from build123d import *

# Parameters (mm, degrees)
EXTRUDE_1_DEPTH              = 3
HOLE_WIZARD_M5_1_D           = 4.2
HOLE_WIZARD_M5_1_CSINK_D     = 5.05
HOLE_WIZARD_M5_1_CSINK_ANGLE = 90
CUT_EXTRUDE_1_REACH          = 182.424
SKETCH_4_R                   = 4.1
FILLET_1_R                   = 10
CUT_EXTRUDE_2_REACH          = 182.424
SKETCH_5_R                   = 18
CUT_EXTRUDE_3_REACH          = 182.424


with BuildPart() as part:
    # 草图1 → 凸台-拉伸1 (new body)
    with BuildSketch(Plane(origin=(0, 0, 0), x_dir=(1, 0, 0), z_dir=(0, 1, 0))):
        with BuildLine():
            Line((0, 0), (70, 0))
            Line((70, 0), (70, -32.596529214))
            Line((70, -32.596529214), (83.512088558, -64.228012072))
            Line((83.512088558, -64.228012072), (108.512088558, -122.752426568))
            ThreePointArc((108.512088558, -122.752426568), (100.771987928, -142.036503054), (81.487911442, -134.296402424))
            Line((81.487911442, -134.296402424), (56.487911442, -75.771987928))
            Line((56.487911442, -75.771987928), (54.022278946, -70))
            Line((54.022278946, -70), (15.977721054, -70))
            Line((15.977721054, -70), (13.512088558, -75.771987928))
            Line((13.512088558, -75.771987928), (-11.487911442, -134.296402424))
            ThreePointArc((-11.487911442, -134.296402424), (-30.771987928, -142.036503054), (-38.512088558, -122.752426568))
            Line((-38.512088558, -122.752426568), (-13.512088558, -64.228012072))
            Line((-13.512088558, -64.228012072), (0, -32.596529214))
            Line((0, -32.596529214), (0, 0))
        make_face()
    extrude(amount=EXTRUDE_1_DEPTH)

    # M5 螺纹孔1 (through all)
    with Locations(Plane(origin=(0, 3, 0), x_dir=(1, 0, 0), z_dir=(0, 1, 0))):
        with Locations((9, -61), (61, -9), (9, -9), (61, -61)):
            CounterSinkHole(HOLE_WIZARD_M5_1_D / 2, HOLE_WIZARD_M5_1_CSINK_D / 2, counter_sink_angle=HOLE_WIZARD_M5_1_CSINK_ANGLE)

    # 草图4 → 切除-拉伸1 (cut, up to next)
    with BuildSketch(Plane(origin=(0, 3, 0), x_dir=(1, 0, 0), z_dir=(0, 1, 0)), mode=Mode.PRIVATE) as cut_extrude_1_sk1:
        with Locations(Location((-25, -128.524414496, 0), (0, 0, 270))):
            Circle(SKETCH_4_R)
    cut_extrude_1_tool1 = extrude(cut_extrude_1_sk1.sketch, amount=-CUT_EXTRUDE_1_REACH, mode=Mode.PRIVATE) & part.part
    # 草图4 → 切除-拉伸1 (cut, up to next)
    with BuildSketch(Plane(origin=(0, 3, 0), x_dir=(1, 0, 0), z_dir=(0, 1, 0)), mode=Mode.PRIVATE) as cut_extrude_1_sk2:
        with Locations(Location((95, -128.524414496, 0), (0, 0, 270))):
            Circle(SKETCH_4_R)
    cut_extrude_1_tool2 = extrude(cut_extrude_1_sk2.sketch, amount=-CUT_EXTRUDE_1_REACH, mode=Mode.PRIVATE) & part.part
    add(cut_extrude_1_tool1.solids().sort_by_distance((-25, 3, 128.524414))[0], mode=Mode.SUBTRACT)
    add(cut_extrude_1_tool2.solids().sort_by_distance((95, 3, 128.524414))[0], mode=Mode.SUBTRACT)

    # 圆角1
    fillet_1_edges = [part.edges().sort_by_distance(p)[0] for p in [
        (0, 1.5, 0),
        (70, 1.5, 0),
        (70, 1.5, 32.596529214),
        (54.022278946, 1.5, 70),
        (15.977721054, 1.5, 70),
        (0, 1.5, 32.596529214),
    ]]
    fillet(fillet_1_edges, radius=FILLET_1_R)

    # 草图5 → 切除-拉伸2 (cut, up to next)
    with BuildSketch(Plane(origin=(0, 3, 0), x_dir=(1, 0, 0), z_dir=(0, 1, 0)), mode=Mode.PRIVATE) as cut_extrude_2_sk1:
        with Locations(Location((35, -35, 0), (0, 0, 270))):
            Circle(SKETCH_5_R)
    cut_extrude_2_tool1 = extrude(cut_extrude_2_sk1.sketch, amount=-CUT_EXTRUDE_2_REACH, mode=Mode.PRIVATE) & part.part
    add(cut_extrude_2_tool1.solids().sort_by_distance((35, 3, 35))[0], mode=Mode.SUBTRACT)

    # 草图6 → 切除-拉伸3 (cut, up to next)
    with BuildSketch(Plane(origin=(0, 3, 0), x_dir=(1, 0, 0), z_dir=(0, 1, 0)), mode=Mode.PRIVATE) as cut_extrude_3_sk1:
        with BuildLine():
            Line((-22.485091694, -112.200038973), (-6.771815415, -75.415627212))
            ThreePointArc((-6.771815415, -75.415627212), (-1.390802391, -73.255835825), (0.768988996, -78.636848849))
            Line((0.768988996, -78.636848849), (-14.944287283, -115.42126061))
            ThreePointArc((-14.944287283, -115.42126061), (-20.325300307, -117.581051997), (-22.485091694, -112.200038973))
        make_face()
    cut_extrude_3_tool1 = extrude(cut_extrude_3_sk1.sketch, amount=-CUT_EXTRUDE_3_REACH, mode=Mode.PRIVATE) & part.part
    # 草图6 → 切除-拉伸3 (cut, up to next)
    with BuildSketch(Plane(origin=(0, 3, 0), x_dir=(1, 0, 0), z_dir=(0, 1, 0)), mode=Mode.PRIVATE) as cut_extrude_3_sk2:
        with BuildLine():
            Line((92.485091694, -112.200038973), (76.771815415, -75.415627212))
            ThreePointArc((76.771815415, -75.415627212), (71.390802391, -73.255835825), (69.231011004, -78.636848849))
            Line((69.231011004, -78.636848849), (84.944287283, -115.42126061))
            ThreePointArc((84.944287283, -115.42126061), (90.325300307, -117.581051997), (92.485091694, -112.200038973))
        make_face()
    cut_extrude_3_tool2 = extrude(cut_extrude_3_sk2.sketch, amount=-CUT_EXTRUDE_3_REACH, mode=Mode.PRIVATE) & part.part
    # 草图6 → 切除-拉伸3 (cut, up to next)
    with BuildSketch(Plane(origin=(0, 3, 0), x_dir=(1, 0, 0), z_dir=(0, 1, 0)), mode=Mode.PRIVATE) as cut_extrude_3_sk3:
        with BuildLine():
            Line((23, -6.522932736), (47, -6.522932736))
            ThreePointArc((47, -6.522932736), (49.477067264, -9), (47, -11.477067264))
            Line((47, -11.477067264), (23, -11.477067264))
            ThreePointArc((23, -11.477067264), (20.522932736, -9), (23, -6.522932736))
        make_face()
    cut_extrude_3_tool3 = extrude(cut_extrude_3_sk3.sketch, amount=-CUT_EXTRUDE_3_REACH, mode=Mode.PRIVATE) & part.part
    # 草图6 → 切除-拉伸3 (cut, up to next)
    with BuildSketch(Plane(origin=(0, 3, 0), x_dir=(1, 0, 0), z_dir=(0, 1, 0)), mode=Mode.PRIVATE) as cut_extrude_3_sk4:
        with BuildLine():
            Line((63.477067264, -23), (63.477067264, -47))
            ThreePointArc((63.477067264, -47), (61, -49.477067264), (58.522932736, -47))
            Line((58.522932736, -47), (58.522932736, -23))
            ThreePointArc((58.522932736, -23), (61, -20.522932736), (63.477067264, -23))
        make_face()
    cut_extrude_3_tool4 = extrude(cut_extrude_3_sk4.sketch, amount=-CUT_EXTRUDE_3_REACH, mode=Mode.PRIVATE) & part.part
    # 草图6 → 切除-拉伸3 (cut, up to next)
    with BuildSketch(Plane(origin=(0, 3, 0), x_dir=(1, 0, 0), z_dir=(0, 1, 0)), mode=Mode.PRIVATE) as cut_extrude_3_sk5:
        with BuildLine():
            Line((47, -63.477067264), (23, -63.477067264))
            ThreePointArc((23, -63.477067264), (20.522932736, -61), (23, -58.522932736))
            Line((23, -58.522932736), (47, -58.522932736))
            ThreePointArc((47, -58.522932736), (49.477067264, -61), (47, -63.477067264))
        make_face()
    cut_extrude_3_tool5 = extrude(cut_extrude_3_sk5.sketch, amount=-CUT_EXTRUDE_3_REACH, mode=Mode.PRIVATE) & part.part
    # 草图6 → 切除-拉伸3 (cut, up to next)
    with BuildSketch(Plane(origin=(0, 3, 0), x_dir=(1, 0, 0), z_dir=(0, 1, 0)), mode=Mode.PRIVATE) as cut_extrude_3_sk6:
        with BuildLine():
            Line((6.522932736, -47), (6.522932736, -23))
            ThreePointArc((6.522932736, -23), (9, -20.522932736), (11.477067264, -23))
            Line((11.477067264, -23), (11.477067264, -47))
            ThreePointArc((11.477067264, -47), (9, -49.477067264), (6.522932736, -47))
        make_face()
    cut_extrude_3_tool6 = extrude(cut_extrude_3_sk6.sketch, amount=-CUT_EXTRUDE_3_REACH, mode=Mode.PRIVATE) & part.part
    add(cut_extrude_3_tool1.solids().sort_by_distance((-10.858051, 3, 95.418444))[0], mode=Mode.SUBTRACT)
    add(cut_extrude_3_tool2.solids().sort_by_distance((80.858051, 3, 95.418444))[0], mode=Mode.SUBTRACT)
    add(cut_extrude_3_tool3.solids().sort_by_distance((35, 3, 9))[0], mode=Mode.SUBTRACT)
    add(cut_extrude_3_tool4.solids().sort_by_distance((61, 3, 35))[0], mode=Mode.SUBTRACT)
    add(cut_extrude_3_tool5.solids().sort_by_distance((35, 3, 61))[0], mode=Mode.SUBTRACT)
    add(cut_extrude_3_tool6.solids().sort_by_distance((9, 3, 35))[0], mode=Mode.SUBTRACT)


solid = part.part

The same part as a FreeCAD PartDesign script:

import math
import FreeCAD as App
import Part
import Sketcher

V = App.Vector
Q = App.Units.Quantity


def edges_at(feature, points):
    """Names of the edges that pass closest to the given points."""
    edges = feature.Shape.Edges
    near = lambda p: min(range(len(edges)), key=lambda i: edges[i].distToShape(Part.Vertex(*p))[0])
    return sorted({f"Edge{near(p) + 1}" for p in points})

doc = App.newDocument("Part")
body = doc.addObject("PartDesign::Body", "Body")

sketch1 = body.newObject("Sketcher::SketchObject", "Sketch")
sketch1.AttachmentSupport = (doc.getObject("XZ_Plane"), [""])
sketch1.MapMode = "FlatFace"
sketch1.addGeometry([
    Part.LineSegment(V(70, 0, 0), V(0, 0, 0)),
    Part.LineSegment(V(0, 0, 0), V(0, 33, 0)),
    Part.LineSegment(V(0, 33, 0), V(-14, 64, 0)),
    Part.LineSegment(V(-14, 64, 0), V(-39, 123, 0)),
    Part.ArcOfCircle(Part.Circle(V(-25, 129, 0), V(0, 0, 1), 15), math.radians(23), math.radians(203)),
    Part.LineSegment(V(-11, 134, 0), V(14, 76, 0)),
    Part.LineSegment(V(14, 76, 0), V(16, 70, 0)),
    Part.LineSegment(V(16, 70, 0), V(54, 70, 0)),
    Part.LineSegment(V(54, 70, 0), V(56, 76, 0)),
    Part.LineSegment(V(56, 76, 0), V(81, 134, 0)),
    Part.ArcOfCircle(Part.Circle(V(95, 129, 0), V(0, 0, 1), 15), math.radians(-23), math.radians(157)),
    Part.LineSegment(V(109, 123, 0), V(84, 64, 0)),
    Part.LineSegment(V(84, 64, 0), V(70, 33, 0)),
    Part.LineSegment(V(70, 33, 0), V(70, 0, 0)),
], False)
sketch1.addConstraint([
    Sketcher.Constraint("Coincident", 0, 2, 1, 1),
    Sketcher.Constraint("Coincident", 1, 2, 2, 1),
    Sketcher.Constraint("Coincident", 2, 2, 3, 1),
    Sketcher.Constraint("Tangent", 3, 2, 4, 2),
    Sketcher.Constraint("Tangent", 4, 1, 5, 1),
    Sketcher.Constraint("Coincident", 5, 2, 6, 1),
    Sketcher.Constraint("Coincident", 6, 2, 7, 1),
    Sketcher.Constraint("Coincident", 7, 2, 8, 1),
    Sketcher.Constraint("Coincident", 8, 2, 9, 1),
    Sketcher.Constraint("Tangent", 9, 2, 10, 2),
    Sketcher.Constraint("Tangent", 10, 1, 11, 1),
    Sketcher.Constraint("Coincident", 11, 2, 12, 1),
    Sketcher.Constraint("Coincident", 12, 2, 13, 1),
    Sketcher.Constraint("Coincident", 13, 2, 0, 1),
    Sketcher.Constraint("Horizontal", 0),
    Sketcher.Constraint("Vertical", 1),
    Sketcher.Constraint("Horizontal", 7),
    Sketcher.Constraint("Vertical", 13),
    Sketcher.Constraint("Coincident", 0, 2, -1, 1),
    Sketcher.Constraint("Equal", 4, 10),
    Sketcher.Constraint("Parallel", 2, 3),
    Sketcher.Constraint("Parallel", 3, 5),
    Sketcher.Constraint("Parallel", 5, 6),
    Sketcher.Constraint("Parallel", 8, 9),
    Sketcher.Constraint("Parallel", 9, 11),
    Sketcher.Constraint("Parallel", 11, 12),
    Sketcher.Constraint("Horizontal", 4, 3, 10, 3),
    Sketcher.Constraint("Horizontal", 5, 2, 8, 2),
    Sketcher.Constraint("Horizontal", 4, 1, 9, 2),
    Sketcher.Constraint("Horizontal", 2, 2, 11, 2),
    Sketcher.Constraint("Horizontal", 1, 2, 12, 2),
    Sketcher.Constraint("Equal", 3, 5),
    Sketcher.Constraint("DistanceX", 0, 2, 0, 1, Q("70 mm")),
    Sketcher.Constraint("DistanceX", 4, 3, -1, 1, Q("25 mm")),
    Sketcher.Constraint("DistanceY", -1, 1, 6, 2, Q("70 mm")),
    Sketcher.Constraint("DistanceX", 3, 2, 2, 2, Q("25 mm")),
    Sketcher.Constraint("Radius", 4, Q("14.693277 mm")),
    Sketcher.Constraint("DistanceY", 1, 1, 1, 2, Q("32.596529 mm")),
    Sketcher.Constraint("Distance", 3, Q("63.640452 mm")),
])
pad1 = body.newObject("PartDesign::Pad", "Pad")
pad1.Profile = sketch1
pad1.Length = 3
pad1.Reversed = True

sketch2 = body.newObject("Sketcher::SketchObject", "Sketch001")
sketch2.AttachmentSupport = (doc.getObject("XZ_Plane"), [""])
sketch2.MapMode = "FlatFace"
sketch2.AttachmentOffset = App.Placement(V(0, 0, -3), App.Rotation())
sketch2.addGeometry([
    Part.Circle(V(9, 61, 0), V(0, 0, 1), 2.1),
    Part.Circle(V(61, 9, 0), V(0, 0, 1), 2.1),
    Part.Circle(V(9, 9, 0), V(0, 0, 1), 2.1),
    Part.Circle(V(61, 61, 0), V(0, 0, 1), 2.1),
], False)
sketch2.addConstraint([
    Sketcher.Constraint("Equal", 0, 1),
    Sketcher.Constraint("Equal", 1, 2),
    Sketcher.Constraint("Equal", 2, 3),
    Sketcher.Constraint("Horizontal", 1, 3, 2, 3),
    Sketcher.Constraint("Horizontal", 0, 3, 3, 3),
    Sketcher.Constraint("Vertical", 0, 3, 2, 3),
    Sketcher.Constraint("Vertical", 1, 3, 3, 3),
    Sketcher.Constraint("Diameter", 0, Q("4.2 mm")),
    Sketcher.Constraint("DistanceX", -1, 1, 0, 3, Q("9 mm")),
    Sketcher.Constraint("DistanceY", -1, 1, 0, 3, Q("61 mm")),
    Sketcher.Constraint("DistanceX", -1, 1, 1, 3, Q("61 mm")),
    Sketcher.Constraint("DistanceY", -1, 1, 1, 3, Q("9 mm")),
])
doc.recompute()
hole = body.newObject("PartDesign::Hole", "Hole")
hole.Profile = sketch2
hole.ThreadType = "None"
hole.Diameter = 4.2
hole.DepthType = "ThroughAll"
hole.HoleCutType = "Countersink"
hole.HoleCutDiameter = 5.05
hole.HoleCutCountersinkAngle = 90
hole.Reversed = True

sketch3 = body.newObject("Sketcher::SketchObject", "Sketch002")
sketch3.AttachmentSupport = (doc.getObject("XZ_Plane"), [""])
sketch3.MapMode = "FlatFace"
sketch3.AttachmentOffset = App.Placement(V(0, 0, -3), App.Rotation())
sketch3.addGeometry(Part.Circle(V(-25, 128.5, 0), V(0, 0, 1), 4.1), False)
sketch3.addConstraint([
    Sketcher.Constraint("Diameter", 0, Q("8.2 mm")),
    Sketcher.Constraint("DistanceX", 0, 3, -1, 1, Q("25 mm")),
    Sketcher.Constraint("DistanceY", -1, 1, 0, 3, Q("128.524414 mm")),
])
pocket1 = body.newObject("PartDesign::Pocket", "Pocket")
pocket1.Profile = sketch3
pocket1.Type = "UpToFirst"
pocket1.Reversed = True

sketch4 = body.newObject("Sketcher::SketchObject", "Sketch003")
sketch4.AttachmentSupport = (doc.getObject("XZ_Plane"), [""])
sketch4.MapMode = "FlatFace"
sketch4.AttachmentOffset = App.Placement(V(0, 0, -3), App.Rotation())
sketch4.addGeometry(Part.Circle(V(95, 128.5, 0), V(0, 0, 1), 4.1), False)
sketch4.addConstraint([
    Sketcher.Constraint("Diameter", 0, Q("8.2 mm")),
    Sketcher.Constraint("DistanceX", -1, 1, 0, 3, Q("95 mm")),
    Sketcher.Constraint("DistanceY", -1, 1, 0, 3, Q("128.524414 mm")),
])
pocket2 = body.newObject("PartDesign::Pocket", "Pocket001")
pocket2.Profile = sketch4
pocket2.Type = "UpToFirst"
pocket2.Reversed = True
doc.recompute()

fillet = body.newObject("PartDesign::Fillet", "Fillet")
fillet.Base = (pocket2, edges_at(pocket2, [
    (0, 1.5, 0),
    (70, 1.5, 0),
    (70, 1.5, 32.597),
    (54.022, 1.5, 70),
    (15.978, 1.5, 70),
    (0, 1.5, 32.597),
]))
fillet.Radius = 10

sketch5 = body.newObject("Sketcher::SketchObject", "Sketch004")
sketch5.AttachmentSupport = (doc.getObject("XZ_Plane"), [""])
sketch5.MapMode = "FlatFace"
sketch5.AttachmentOffset = App.Placement(V(0, 0, -3), App.Rotation())
sketch5.addGeometry(Part.Circle(V(35, 35, 0), V(0, 0, 1), 18), False)
sketch5.addConstraint([
    Sketcher.Constraint("Diameter", 0, Q("36 mm")),
    Sketcher.Constraint("DistanceX", -1, 1, 0, 3, Q("35 mm")),
    Sketcher.Constraint("DistanceY", -1, 1, 0, 3, Q("35 mm")),
])
pocket3 = body.newObject("PartDesign::Pocket", "Pocket002")
pocket3.Profile = sketch5
pocket3.Type = "UpToFirst"
pocket3.Reversed = True

sketch6 = body.newObject("Sketcher::SketchObject", "Sketch005")
sketch6.AttachmentSupport = (doc.getObject("XZ_Plane"), [""])
sketch6.MapMode = "FlatFace"
sketch6.AttachmentOffset = App.Placement(V(0, 0, -3), App.Rotation())
sketch6.addGeometry([
    Part.LineSegment(V(-6.8, 75.4, 0), V(-22.5, 112.2, 0)),
    Part.ArcOfCircle(Part.Circle(V(-18.7, 113.8, 0), V(0, 0, 1), 4.1), math.radians(23), math.radians(203)),
    Part.LineSegment(V(-14.9, 115.4, 0), V(0.8, 78.6, 0)),
    Part.ArcOfCircle(Part.Circle(V(-3, 77, 0), V(0, 0, 1), 4.1), math.radians(-157), math.radians(23)),
], False)
sketch6.addConstraint([
    Sketcher.Constraint("Tangent", 0, 2, 1, 2),
    Sketcher.Constraint("Tangent", 1, 1, 2, 1),
    Sketcher.Constraint("Tangent", 2, 2, 3, 2),
    Sketcher.Constraint("Tangent", 3, 1, 0, 1),
    Sketcher.Constraint("Equal", 1, 3),
    Sketcher.Constraint("Radius", 1, Q("4.1 mm")),
    Sketcher.Constraint("Distance", 0, Q("40 mm")),
    Sketcher.Constraint("DistanceY", 3, 3, 0, 2, Q("35.173801 mm")),
    Sketcher.Constraint("DistanceX", 1, 3, -1, 1, Q("18.714689 mm")),
    Sketcher.Constraint("DistanceY", -1, 1, 1, 3, Q("113.81065 mm")),
])
pocket4 = body.newObject("PartDesign::Pocket", "Pocket003")
pocket4.Profile = sketch6
pocket4.Type = "UpToFirst"
pocket4.Reversed = True

sketch7 = body.newObject("Sketcher::SketchObject", "Sketch006")
sketch7.AttachmentSupport = (doc.getObject("XZ_Plane"), [""])
sketch7.MapMode = "FlatFace"
sketch7.AttachmentOffset = App.Placement(V(0, 0, -3), App.Rotation())
sketch7.addGeometry([
    Part.LineSegment(V(92.5, 112.2, 0), V(76.8, 75.4, 0)),
    Part.ArcOfCircle(Part.Circle(V(73, 77, 0), V(0, 0, 1), 4.1), math.radians(157), math.radians(337)),
    Part.LineSegment(V(69.2, 78.6, 0), V(84.9, 115.4, 0)),
    Part.ArcOfCircle(Part.Circle(V(88.7, 113.8, 0), V(0, 0, 1), 4.1), math.radians(-23), math.radians(157)),
], False)
sketch7.addConstraint([
    Sketcher.Constraint("Tangent", 0, 2, 1, 2),
    Sketcher.Constraint("Tangent", 1, 1, 2, 1),
    Sketcher.Constraint("Tangent", 2, 2, 3, 2),
    Sketcher.Constraint("Tangent", 3, 1, 0, 1),
    Sketcher.Constraint("Equal", 1, 3),
    Sketcher.Constraint("Radius", 1, Q("4.1 mm")),
    Sketcher.Constraint("Distance", 0, Q("40 mm")),
    Sketcher.Constraint("DistanceY", 1, 1, 3, 3, Q("35.173801 mm")),
    Sketcher.Constraint("DistanceY", -1, 1, 1, 3, Q("77.026238 mm")),
    Sketcher.Constraint("DistanceX", -1, 1, 3, 3, Q("88.714689 mm")),
])
pocket5 = body.newObject("PartDesign::Pocket", "Pocket004")
pocket5.Profile = sketch7
pocket5.Type = "UpToFirst"
pocket5.Reversed = True

sketch8 = body.newObject("Sketcher::SketchObject", "Sketch007")
sketch8.AttachmentSupport = (doc.getObject("XZ_Plane"), [""])
sketch8.MapMode = "FlatFace"
sketch8.AttachmentOffset = App.Placement(V(0, 0, -3), App.Rotation())
sketch8.addGeometry([
    Part.LineSegment(V(47, 6.5, 0), V(23, 6.5, 0)),
    Part.ArcOfCircle(Part.Circle(V(23, 9, 0), V(0, 0, 1), 2.5), math.radians(90), math.radians(270)),
    Part.LineSegment(V(23, 11.5, 0), V(47, 11.5, 0)),
    Part.ArcOfCircle(Part.Circle(V(47, 9, 0), V(0, 0, 1), 2.5), math.radians(-90), math.radians(90)),
], False)
sketch8.addConstraint([
    Sketcher.Constraint("Tangent", 0, 2, 1, 2),
    Sketcher.Constraint("Tangent", 1, 1, 2, 1),
    Sketcher.Constraint("Tangent", 2, 2, 3, 2),
    Sketcher.Constraint("Tangent", 3, 1, 0, 1),
    Sketcher.Constraint("Horizontal", 0),
    Sketcher.Constraint("Horizontal", 2),
    Sketcher.Constraint("DistanceX", 0, 2, 0, 1, Q("24 mm")),
    Sketcher.Constraint("DistanceX", -1, 1, 1, 3, Q("23 mm")),
    Sketcher.Constraint("DistanceY", -1, 1, 1, 3, Q("9 mm")),
    Sketcher.Constraint("Radius", 1, Q("2.477067 mm")),
])
pocket6 = body.newObject("PartDesign::Pocket", "Pocket005")
pocket6.Profile = sketch8
pocket6.Type = "UpToFirst"
pocket6.Reversed = True

sketch9 = body.newObject("Sketcher::SketchObject", "Sketch008")
sketch9.AttachmentSupport = (doc.getObject("XZ_Plane"), [""])
sketch9.MapMode = "FlatFace"
sketch9.AttachmentOffset = App.Placement(V(0, 0, -3), App.Rotation())
sketch9.addGeometry([
    Part.LineSegment(V(63.5, 47, 0), V(63.5, 23, 0)),
    Part.ArcOfCircle(Part.Circle(V(61, 23, 0), V(0, 0, 1), 2.5), math.radians(180), math.radians(360)),
    Part.LineSegment(V(58.5, 23, 0), V(58.5, 47, 0)),
    Part.ArcOfCircle(Part.Circle(V(61, 47, 0), V(0, 0, 1), 2.5), math.radians(0), math.radians(180)),
], False)
sketch9.addConstraint([
    Sketcher.Constraint("Tangent", 0, 2, 1, 2),
    Sketcher.Constraint("Tangent", 1, 1, 2, 1),
    Sketcher.Constraint("Tangent", 2, 2, 3, 2),
    Sketcher.Constraint("Tangent", 3, 1, 0, 1),
    Sketcher.Constraint("Vertical", 0),
    Sketcher.Constraint("Vertical", 2),
    Sketcher.Constraint("DistanceY", 0, 2, 0, 1, Q("24 mm")),
    Sketcher.Constraint("DistanceX", -1, 1, 1, 3, Q("61 mm")),
    Sketcher.Constraint("DistanceY", -1, 1, 1, 3, Q("23 mm")),
    Sketcher.Constraint("Radius", 1, Q("2.477067 mm")),
])
pocket7 = body.newObject("PartDesign::Pocket", "Pocket006")
pocket7.Profile = sketch9
pocket7.Type = "UpToFirst"
pocket7.Reversed = True

sketch10 = body.newObject("Sketcher::SketchObject", "Sketch009")
sketch10.AttachmentSupport = (doc.getObject("XZ_Plane"), [""])
sketch10.MapMode = "FlatFace"
sketch10.AttachmentOffset = App.Placement(V(0, 0, -3), App.Rotation())
sketch10.addGeometry([
    Part.LineSegment(V(23, 63.5, 0), V(47, 63.5, 0)),
    Part.ArcOfCircle(Part.Circle(V(47, 61, 0), V(0, 0, 1), 2.5), math.radians(-90), math.radians(90)),
    Part.LineSegment(V(47, 58.5, 0), V(23, 58.5, 0)),
    Part.ArcOfCircle(Part.Circle(V(23, 61, 0), V(0, 0, 1), 2.5), math.radians(90), math.radians(270)),
], False)
sketch10.addConstraint([
    Sketcher.Constraint("Tangent", 0, 2, 1, 2),
    Sketcher.Constraint("Tangent", 1, 1, 2, 1),
    Sketcher.Constraint("Tangent", 2, 2, 3, 2),
    Sketcher.Constraint("Tangent", 3, 1, 0, 1),
    Sketcher.Constraint("Horizontal", 0),
    Sketcher.Constraint("Horizontal", 2),
    Sketcher.Constraint("DistanceX", 0, 1, 0, 2, Q("24 mm")),
    Sketcher.Constraint("DistanceX", -1, 1, 1, 3, Q("47 mm")),
    Sketcher.Constraint("DistanceY", -1, 1, 1, 3, Q("61 mm")),
    Sketcher.Constraint("Radius", 1, Q("2.477067 mm")),
])
pocket8 = body.newObject("PartDesign::Pocket", "Pocket007")
pocket8.Profile = sketch10
pocket8.Type = "UpToFirst"
pocket8.Reversed = True

sketch11 = body.newObject("Sketcher::SketchObject", "Sketch010")
sketch11.AttachmentSupport = (doc.getObject("XZ_Plane"), [""])
sketch11.MapMode = "FlatFace"
sketch11.AttachmentOffset = App.Placement(V(0, 0, -3), App.Rotation())
sketch11.addGeometry([
    Part.LineSegment(V(6.5, 23, 0), V(6.5, 47, 0)),
    Part.ArcOfCircle(Part.Circle(V(9, 47, 0), V(0, 0, 1), 2.5), math.radians(0), math.radians(180)),
    Part.LineSegment(V(11.5, 47, 0), V(11.5, 23, 0)),
    Part.ArcOfCircle(Part.Circle(V(9, 23, 0), V(0, 0, 1), 2.5), math.radians(180), math.radians(360)),
], False)
sketch11.addConstraint([
    Sketcher.Constraint("Tangent", 0, 2, 1, 2),
    Sketcher.Constraint("Tangent", 1, 1, 2, 1),
    Sketcher.Constraint("Tangent", 2, 2, 3, 2),
    Sketcher.Constraint("Tangent", 3, 1, 0, 1),
    Sketcher.Constraint("Vertical", 0),
    Sketcher.Constraint("Vertical", 2),
    Sketcher.Constraint("DistanceY", 0, 1, 0, 2, Q("24 mm")),
    Sketcher.Constraint("DistanceX", -1, 1, 1, 3, Q("9 mm")),
    Sketcher.Constraint("DistanceY", -1, 1, 1, 3, Q("47 mm")),
    Sketcher.Constraint("Radius", 1, Q("2.477067 mm")),
])
pocket9 = body.newObject("PartDesign::Pocket", "Pocket008")
pocket9.Profile = sketch11
pocket9.Type = "UpToFirst"
pocket9.Reversed = True

doc.recompute()
